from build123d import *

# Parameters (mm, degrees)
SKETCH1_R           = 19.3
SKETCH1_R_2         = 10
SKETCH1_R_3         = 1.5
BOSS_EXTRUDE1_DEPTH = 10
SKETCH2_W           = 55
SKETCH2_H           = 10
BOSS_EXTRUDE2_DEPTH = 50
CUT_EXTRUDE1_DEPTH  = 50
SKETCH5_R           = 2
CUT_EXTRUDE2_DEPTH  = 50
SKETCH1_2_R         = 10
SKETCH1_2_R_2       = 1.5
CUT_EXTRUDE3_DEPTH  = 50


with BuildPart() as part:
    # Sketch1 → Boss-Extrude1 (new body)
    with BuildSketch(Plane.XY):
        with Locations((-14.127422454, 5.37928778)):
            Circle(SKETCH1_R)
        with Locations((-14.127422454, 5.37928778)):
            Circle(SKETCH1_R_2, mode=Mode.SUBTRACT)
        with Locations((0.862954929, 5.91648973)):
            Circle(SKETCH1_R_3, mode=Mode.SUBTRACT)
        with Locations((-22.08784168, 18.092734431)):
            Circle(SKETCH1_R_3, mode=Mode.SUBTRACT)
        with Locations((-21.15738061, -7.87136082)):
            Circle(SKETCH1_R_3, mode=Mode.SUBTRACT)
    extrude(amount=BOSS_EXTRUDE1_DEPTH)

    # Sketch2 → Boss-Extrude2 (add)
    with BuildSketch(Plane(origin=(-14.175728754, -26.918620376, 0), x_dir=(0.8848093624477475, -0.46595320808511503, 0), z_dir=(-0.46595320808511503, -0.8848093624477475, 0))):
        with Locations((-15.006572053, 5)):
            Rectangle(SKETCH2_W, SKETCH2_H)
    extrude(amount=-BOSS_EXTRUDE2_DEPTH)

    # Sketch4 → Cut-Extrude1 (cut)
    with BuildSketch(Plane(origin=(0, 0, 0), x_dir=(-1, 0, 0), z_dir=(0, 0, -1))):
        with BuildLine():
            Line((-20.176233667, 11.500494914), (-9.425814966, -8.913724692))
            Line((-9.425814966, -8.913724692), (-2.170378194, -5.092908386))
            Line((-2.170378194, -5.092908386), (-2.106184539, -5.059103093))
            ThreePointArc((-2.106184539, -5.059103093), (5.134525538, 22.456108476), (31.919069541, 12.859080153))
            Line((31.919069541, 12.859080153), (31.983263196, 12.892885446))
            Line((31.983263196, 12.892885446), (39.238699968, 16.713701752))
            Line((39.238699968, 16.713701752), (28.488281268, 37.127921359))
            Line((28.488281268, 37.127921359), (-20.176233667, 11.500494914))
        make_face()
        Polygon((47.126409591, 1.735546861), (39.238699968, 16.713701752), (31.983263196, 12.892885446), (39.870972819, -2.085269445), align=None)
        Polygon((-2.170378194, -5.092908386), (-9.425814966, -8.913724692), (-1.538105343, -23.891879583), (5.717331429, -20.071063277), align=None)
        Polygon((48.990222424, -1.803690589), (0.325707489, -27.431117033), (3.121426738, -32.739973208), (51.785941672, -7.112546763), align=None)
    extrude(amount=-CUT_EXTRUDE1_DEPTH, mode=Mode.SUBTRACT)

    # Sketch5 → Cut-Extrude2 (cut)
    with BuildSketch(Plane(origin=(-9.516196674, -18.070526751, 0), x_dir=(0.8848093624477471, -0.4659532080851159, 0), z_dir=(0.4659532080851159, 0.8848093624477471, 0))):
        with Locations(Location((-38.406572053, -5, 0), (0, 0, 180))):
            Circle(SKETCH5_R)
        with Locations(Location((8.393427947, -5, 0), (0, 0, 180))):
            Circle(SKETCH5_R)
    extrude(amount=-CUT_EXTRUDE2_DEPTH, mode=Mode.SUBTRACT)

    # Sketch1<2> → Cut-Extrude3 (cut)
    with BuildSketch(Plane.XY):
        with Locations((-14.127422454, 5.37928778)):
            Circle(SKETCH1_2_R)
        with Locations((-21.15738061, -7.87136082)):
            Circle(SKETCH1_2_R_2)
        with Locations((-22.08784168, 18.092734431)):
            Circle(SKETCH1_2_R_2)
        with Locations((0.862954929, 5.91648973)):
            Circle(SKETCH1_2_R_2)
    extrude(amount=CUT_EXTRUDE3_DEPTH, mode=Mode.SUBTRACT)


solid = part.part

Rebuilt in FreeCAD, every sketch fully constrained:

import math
import FreeCAD as App
import Part
import Sketcher

V = App.Vector
Q = App.Units.Quantity

doc = App.newDocument("Part")
body = doc.addObject("PartDesign::Body", "Body")

# Sketch on XY plane
sketch1 = doc.addObject("Sketcher::SketchObject", "Sketch")
body.addObject(sketch1)
sketch1.AttachmentSupport = (doc.XY_Plane, [""])
sketch1.MapMode = "FlatFace"
sketch1.addGeometry([
    Part.Circle(V(-14.1, 5.4, 0), V(0, 0, 1), 19.3),  # 0
    Part.Circle(V(-21.2, -7.9, 0), V(0, 0, 1), 1.5),  # 1
    Part.Circle(V(-14.1, 5.4, 0), V(0, 0, 1), 10),  # 2
    Part.Circle(V(-22.1, 18.1, 0), V(0, 0, 1), 1.5),  # 3
    Part.Circle(V(0.9, 5.9, 0), V(0, 0, 1), 1.5),  # 4
], False)
sketch1.addConstraint([
    Sketcher.Constraint("Coincident", 2, 3, 0, 3),
    Sketcher.Constraint("Equal", 1, 3),
    Sketcher.Constraint("Equal", 3, 4),
    Sketcher.Constraint("Diameter", 1, Q("3 mm")),
    Sketcher.Constraint("Diameter", 2, Q("20 mm")),
    Sketcher.Constraint("Diameter", 0, Q("38.6 mm")),
    Sketcher.Constraint("DistanceY", 0, 3, 4, 3, Q("0.537202 mm")),
    Sketcher.Constraint("DistanceX", 1, 3, -1, 1, Q("21.157381 mm")),
    Sketcher.Constraint("DistanceY", 1, 3, -1, 1, Q("7.871361 mm")),
    Sketcher.Constraint("DistanceX", 3, 3, -1, 1, Q("22.087842 mm")),
    Sketcher.Constraint("DistanceY", -1, 1, 4, 3, Q("5.91649 mm")),
    Sketcher.Constraint("DistanceX", 1, 3, 0, 3, Q("7.029958 mm")),
    Sketcher.Constraint("DistanceY", -1, 1, 3, 3, Q("18.092734 mm")),
    Sketcher.Constraint("DistanceX", -1, 1, 4, 3, Q("0.862955 mm")),
])
pad1 = doc.addObject("PartDesign::Pad", "Pad")
body.addObject(pad1)
pad1.Profile = sketch1
pad1.Length = 10

# Sketch on an angled plane
sketch2 = doc.addObject("Sketcher::SketchObject", "Sketch001")
body.addObject(sketch2)
sketch2.Placement = App.Placement(V(-14.175729, -26.91862, 0), App.Rotation(V(0.884809362, -0.465953208, 0), V(0, 0, 0.999999999), V(-0.465953208, -0.884809362, 0), "ZXY"))
sketch2.addGeometry([
    Part.LineSegment(V(-43, 10, 0), V(-43, 0, 0)),
    Part.LineSegment(V(-43, 0, 0), V(12, 0, 0)),
    Part.LineSegment(V(12, 0, 0), V(12, 10, 0)),
    Part.LineSegment(V(12, 10, 0), V(-43, 10, 0)),
], False)
sketch2.addConstraint([
    Sketcher.Constraint("Coincident", 0, 2, 1, 1),
    Sketcher.Constraint("Coincident", 1, 2, 2, 1),
    Sketcher.Constraint("Coincident", 2, 2, 3, 1),
    Sketcher.Constraint("Coincident", 3, 2, 0, 1),
    Sketcher.Constraint("Vertical", 0),
    Sketcher.Constraint("Horizontal", 1),
    Sketcher.Constraint("Vertical", 2),
    Sketcher.Constraint("Horizontal", 3),
    Sketcher.Constraint("PointOnObject", 0, 2, -1),
    Sketcher.Constraint("DistanceX", 1, 1, 1, 2, Q("55 mm")),
    Sketcher.Constraint("DistanceY", 0, 2, 0, 1, Q("10 mm")),
    Sketcher.Constraint("DistanceX", 0, 2, -1, 1, Q("42.506572 mm")),
])
pad2 = doc.addObject("PartDesign::Pad", "Pad001")
body.addObject(pad2)
pad2.Profile = sketch2
pad2.Length = 50
pad2.Reversed = True

# Sketch on XY plane
sketch3 = doc.addObject("Sketcher::SketchObject", "Sketch002")
body.addObject(sketch3)
sketch3.AttachmentSupport = (doc.XY_Plane, [""])
sketch3.MapMode = "FlatFace"
sketch3.addGeometry([
    Part.LineSegment(V(20.18, 11.5, 0), V(9.43, -8.91, 0)),  # 0
    Part.LineSegment(V(9.43, -8.91, 0), V(1.54, -23.89, 0)),  # 1
    Part.LineSegment(V(1.54, -23.89, 0), V(-5.72, -20.07, 0)),  # 2
    Part.LineSegment(V(-5.72, -20.07, 0), V(2.17, -5.09, 0)),  # 3
    Part.LineSegment(V(2.17, -5.09, 0), V(2.11, -5.06, 0)),  # 4
    Part.ArcOfCircle(Part.Circle(V(-14.13, 5.38, 0), V(0, 0, 1), 19.3), math.radians(-33), math.radians(157)),  # 5
    Part.LineSegment(V(-31.92, 12.86, 0), V(-31.98, 12.89, 0)),  # 6
    Part.LineSegment(V(-31.98, 12.89, 0), V(-39.87, -2.09, 0)),  # 7
    Part.LineSegment(V(-39.87, -2.09, 0), V(-47.13, 1.74, 0)),  # 8
    Part.LineSegment(V(-47.13, 1.74, 0), V(-39.24, 16.71, 0)),  # 9
    Part.LineSegment(V(-39.24, 16.71, 0), V(-28.49, 37.13, 0)),  # 10
    Part.LineSegment(V(-28.49, 37.13, 0), V(20.18, 11.5, 0)),  # 11
    Part.LineSegment(V(-48.99, -1.8, 0), V(-0.33, -27.43, 0)),  # 12
    Part.LineSegment(V(-0.33, -27.43, 0), V(-3.12, -32.74, 0)),  # 13
    Part.LineSegment(V(-3.12, -32.74, 0), V(-51.79, -7.11, 0)),  # 14
    Part.LineSegment(V(-51.79, -7.11, 0), V(-48.99, -1.8, 0)),  # 15
], False)
sketch3.addConstraint([
    Sketcher.Constraint("Coincident", 0, 2, 1, 1),
    Sketcher.Constraint("Coincident", 1, 2, 2, 1),
    Sketcher.Constraint("Coincident", 2, 2, 3, 1),
    Sketcher.Constraint("Coincident", 3, 2, 4, 1),
    Sketcher.Constraint("Coincident", 4, 2, 5, 1),
    Sketcher.Constraint("Coincident", 5, 2, 6, 1),
    Sketcher.Constraint("Coincident", 6, 2, 7, 1),
    Sketcher.Constraint("Coincident", 7, 2, 8, 1),
    Sketcher.Constraint("Coincident", 8, 2, 9, 1),
    Sketcher.Constraint("Coincident", 9, 2, 10, 1),
    Sketcher.Constraint("Coincident", 10, 2, 11, 1),
    Sketcher.Constraint("Coincident", 11, 2, 0, 1),
    Sketcher.Constraint("Coincident", 12, 2, 13, 1),
    Sketcher.Constraint("Coincident", 13, 2, 14, 1),
    Sketcher.Constraint("Coincident", 14, 2, 15, 1),
    Sketcher.Constraint("Coincident", 15, 2, 12, 1),
    Sketcher.Constraint("Parallel", 0, 1),
    Sketcher.Constraint("Perpendicular", 1, 2),
    Sketcher.Constraint("Perpendicular", 2, 3),
    Sketcher.Constraint("Perpendicular", 3, 4),
    Sketcher.Constraint("Parallel", 4, 6),
    Sketcher.Constraint("Perpendicular", 6, 7),
    Sketcher.Constraint("Perpendicular", 7, 8),
    Sketcher.Constraint("Perpendicular", 8, 9),
    Sketcher.Constraint("Parallel", 9, 10),
    Sketcher.Constraint("Perpendicular", 10, 11),
    Sketcher.Constraint("Parallel", 11, 12),
    Sketcher.Constraint("Perpendicular", 12, 13),
    Sketcher.Constraint("Perpendicular", 13, 14),
    Sketcher.Constraint("Perpendicular", 14, 15),
    Sketcher.Constraint("Equal", 1, 3),
    Sketcher.Constraint("Equal", 4, 6),
    Sketcher.Constraint("Equal", 3, 7),
    Sketcher.Constraint("Equal", 2, 8),
    Sketcher.Constraint("Equal", 7, 9),
    Sketcher.Constraint("Equal", 0, 10),
    Sketcher.Constraint("Equal", 11, 12),
    Sketcher.Constraint("Radius", 5, Q("19.3 mm")),
    Sketcher.Constraint("Distance", 11, Q("55 mm")),
    Sketcher.Constraint("Distance", 13, Q("6 mm")),
    Sketcher.Constraint("Distance", 2, Q("8.2 mm")),
    Sketcher.Constraint("DistanceX", 9, 2, -1, 1, Q("39.2387 mm")),
    Sketcher.Constraint("DistanceY", -1, 1, 9, 2, Q("16.713702 mm")),
    Sketcher.Constraint("DistanceX", 5, 3, 3, 2, Q("16.297801 mm")),
    Sketcher.Constraint("DistanceY", 4, 2, 11, 2, Q("16.559598 mm")),
    Sketcher.Constraint("Distance", 4, Q("0.072551 mm")),
    Sketcher.Constraint("DistanceY", 1, 2, -1, 1, Q("23.89188 mm")),
    Sketcher.Constraint("DistanceX", 14, 2, -1, 1, Q("51.785942 mm")),
    Sketcher.Constraint("DistanceY", 15, 2, -1, 1, Q("1.803691 mm")),
])
pocket1 = doc.addObject("PartDesign::Pocket", "Pocket")
body.addObject(pocket1)
pocket1.Profile = sketch3
pocket1.Length = 50
pocket1.Reversed = True

# Sketch on an angled plane
sketch4 = doc.addObject("Sketcher::SketchObject", "Sketch003")
body.addObject(sketch4)
sketch4.Placement = App.Placement(V(-9.516197, -18.070527, 0), App.Rotation(V(0.884809362, -0.465953208, 0), V(0, 0, -0.999999999), V(0.465953208, 0.884809362, 0), "ZXY"))
sketch4.addGeometry([
    Part.Circle(V(-38.4, -5, 0), V(0, 0, 1), 2),
    Part.Circle(V(8.4, -5, 0), V(0, 0, 1), 2),
], False)
sketch4.addConstraint([
    Sketcher.Constraint("Equal", 0, 1),
    Sketcher.Constraint("Horizontal", 0, 3, 1, 3),
    Sketcher.Constraint("Diameter", 0, Q("4 mm")),
    Sketcher.Constraint("DistanceY", 0, 3, -1, 1, Q("5 mm")),
    Sketcher.Constraint("DistanceX", 0, 3, 1, 3, Q("46.8 mm")),
    Sketcher.Constraint("DistanceX", 0, 3, -1, 1, Q("38.406572 mm")),
])
pocket2 = doc.addObject("PartDesign::Pocket", "Pocket001")
body.addObject(pocket2)
pocket2.Profile = sketch4
pocket2.Length = 50

# Sketch on XY plane
sketch5 = doc.addObject("Sketcher::SketchObject", "Sketch004")
body.addObject(sketch5)
sketch5.AttachmentSupport = (doc.XY_Plane, [""])
sketch5.MapMode = "FlatFace"
sketch5.addGeometry([
    Part.Circle(V(-14.1, 5.4, 0), V(0, 0, 1), 10),
    Part.Circle(V(-21.2, -7.9, 0), V(0, 0, 1), 1.5),
    Part.Circle(V(-22.1, 18.1, 0), V(0, 0, 1), 1.5),
    Part.Circle(V(0.9, 5.9, 0), V(0, 0, 1), 1.5),
], False)
sketch5.addConstraint([
    Sketcher.Constraint("Equal", 1, 2),
    Sketcher.Constraint("Equal", 2, 3),
    Sketcher.Constraint("Diameter", 0, Q("20 mm")),
    Sketcher.Constraint("Diameter", 1, Q("3 mm")),
    Sketcher.Constraint("DistanceY", 0, 3, 3, 3, Q("0.537202 mm")),
    Sketcher.Constraint("DistanceX", 1, 3, -1, 1, Q("21.157381 mm")),
    Sketcher.Constraint("DistanceY", 1, 3, -1, 1, Q("7.871361 mm")),
    Sketcher.Constraint("DistanceX", 2, 3, -1, 1, Q("22.087842 mm")),
    Sketcher.Constraint("DistanceY", -1, 1, 3, 3, Q("5.91649 mm")),
    Sketcher.Constraint("DistanceX", 1, 3, 0, 3, Q("7.029958 mm")),
    Sketcher.Constraint("DistanceY", -1, 1, 2, 3, Q("18.092734 mm")),
    Sketcher.Constraint("DistanceX", -1, 1, 3, 3, Q("0.862955 mm")),
])
pocket3 = doc.addObject("PartDesign::Pocket", "Pocket002")
body.addObject(pocket3)
pocket3.Profile = sketch5
pocket3.Length = 50
pocket3.Reversed = True

doc.recompute()
